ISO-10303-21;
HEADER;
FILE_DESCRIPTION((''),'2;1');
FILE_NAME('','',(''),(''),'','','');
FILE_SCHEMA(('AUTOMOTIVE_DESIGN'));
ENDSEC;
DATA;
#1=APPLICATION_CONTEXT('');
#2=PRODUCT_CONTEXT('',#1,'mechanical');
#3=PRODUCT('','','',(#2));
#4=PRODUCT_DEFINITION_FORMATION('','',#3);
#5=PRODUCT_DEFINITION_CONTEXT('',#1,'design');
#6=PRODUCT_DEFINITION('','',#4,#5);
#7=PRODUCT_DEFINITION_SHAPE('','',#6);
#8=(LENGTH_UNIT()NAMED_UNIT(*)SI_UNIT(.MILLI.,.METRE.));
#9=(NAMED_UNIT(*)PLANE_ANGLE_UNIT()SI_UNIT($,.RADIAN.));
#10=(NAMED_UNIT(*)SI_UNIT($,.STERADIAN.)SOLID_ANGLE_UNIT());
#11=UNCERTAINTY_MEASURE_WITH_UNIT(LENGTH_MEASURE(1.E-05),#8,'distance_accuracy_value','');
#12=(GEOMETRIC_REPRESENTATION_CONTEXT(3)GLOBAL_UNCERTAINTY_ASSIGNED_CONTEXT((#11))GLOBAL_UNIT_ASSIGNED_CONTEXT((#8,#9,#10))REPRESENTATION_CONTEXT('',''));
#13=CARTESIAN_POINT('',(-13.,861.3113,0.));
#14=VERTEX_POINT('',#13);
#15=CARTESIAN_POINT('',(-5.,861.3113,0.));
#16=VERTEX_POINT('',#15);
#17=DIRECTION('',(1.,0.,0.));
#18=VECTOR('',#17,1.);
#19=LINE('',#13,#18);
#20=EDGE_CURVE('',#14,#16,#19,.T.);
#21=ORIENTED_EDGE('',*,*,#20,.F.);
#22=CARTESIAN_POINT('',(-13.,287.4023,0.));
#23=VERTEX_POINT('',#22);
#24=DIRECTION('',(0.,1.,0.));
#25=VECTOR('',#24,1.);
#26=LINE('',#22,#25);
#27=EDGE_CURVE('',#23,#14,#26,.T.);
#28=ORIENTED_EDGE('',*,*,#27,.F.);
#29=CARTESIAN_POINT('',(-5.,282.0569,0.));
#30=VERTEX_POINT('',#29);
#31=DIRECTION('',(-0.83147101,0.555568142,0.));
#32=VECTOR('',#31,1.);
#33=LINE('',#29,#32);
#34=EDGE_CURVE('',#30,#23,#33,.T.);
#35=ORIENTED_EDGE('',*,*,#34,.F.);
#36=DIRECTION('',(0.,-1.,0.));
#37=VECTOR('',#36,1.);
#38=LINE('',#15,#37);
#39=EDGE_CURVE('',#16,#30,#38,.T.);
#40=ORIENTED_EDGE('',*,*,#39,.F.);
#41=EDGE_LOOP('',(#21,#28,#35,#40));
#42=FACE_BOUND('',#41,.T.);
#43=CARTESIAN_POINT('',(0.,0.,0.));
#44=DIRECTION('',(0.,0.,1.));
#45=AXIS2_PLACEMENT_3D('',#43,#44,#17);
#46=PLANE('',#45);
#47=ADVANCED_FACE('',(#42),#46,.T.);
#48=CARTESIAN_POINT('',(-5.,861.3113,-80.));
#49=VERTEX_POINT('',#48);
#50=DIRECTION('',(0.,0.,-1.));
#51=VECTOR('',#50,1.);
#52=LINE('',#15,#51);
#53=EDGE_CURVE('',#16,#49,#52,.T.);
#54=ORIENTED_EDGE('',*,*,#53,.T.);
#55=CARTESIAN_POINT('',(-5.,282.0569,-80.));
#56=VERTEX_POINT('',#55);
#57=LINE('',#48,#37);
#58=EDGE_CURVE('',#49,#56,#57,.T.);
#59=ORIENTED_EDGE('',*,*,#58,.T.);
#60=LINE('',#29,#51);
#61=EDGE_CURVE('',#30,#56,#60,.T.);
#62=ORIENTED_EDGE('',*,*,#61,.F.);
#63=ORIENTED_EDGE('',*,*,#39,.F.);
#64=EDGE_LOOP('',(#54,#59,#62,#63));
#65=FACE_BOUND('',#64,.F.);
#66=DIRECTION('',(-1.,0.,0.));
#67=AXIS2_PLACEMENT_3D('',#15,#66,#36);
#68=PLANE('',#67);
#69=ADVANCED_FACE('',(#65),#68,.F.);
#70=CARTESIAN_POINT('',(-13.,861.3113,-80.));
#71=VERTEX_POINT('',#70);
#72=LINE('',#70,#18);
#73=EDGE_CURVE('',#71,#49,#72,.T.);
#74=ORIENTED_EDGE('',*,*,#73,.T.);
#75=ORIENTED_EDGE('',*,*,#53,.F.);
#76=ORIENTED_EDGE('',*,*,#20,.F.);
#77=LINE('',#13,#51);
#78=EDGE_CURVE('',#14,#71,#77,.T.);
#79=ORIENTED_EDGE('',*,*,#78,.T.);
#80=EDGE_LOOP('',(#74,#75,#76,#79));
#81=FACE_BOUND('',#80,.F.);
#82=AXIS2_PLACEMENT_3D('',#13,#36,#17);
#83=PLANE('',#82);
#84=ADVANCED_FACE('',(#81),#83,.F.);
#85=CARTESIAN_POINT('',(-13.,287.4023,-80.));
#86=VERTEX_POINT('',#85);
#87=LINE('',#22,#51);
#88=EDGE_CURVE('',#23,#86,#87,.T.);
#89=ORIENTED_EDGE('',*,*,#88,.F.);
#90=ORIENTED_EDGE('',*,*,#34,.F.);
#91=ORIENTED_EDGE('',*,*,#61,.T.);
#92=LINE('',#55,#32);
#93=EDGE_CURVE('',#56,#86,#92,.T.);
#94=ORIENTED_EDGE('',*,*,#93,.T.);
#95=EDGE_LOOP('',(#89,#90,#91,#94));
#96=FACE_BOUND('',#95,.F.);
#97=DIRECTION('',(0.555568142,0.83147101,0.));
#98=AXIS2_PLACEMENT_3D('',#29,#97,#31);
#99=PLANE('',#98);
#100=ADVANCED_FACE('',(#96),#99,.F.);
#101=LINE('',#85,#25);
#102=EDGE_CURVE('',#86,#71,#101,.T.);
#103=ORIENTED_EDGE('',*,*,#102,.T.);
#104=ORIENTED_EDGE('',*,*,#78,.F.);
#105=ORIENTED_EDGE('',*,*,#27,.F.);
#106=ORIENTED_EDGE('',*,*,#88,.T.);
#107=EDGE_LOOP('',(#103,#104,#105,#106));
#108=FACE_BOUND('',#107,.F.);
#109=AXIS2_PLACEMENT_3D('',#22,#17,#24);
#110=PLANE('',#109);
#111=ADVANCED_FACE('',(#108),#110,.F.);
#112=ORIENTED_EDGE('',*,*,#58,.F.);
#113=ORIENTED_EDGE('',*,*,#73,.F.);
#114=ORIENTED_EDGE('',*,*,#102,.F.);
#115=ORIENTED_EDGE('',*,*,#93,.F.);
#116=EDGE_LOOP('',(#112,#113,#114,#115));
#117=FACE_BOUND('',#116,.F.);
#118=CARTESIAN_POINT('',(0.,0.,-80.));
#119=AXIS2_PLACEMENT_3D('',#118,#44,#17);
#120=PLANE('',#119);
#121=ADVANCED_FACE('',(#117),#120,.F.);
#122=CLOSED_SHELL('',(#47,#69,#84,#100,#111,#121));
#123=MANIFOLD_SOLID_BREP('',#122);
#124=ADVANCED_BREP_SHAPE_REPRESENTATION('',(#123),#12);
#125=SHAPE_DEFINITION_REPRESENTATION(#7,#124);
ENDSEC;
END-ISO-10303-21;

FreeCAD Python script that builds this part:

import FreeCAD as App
import Part
import Sketcher
from FreeCAD import Vector
Q = App.Units.Quantity

doc = App.newDocument("Part")
body = doc.addObject("PartDesign::Body", "Body")

# Sketch on XY plane
sketch1 = body.newObject("Sketcher::SketchObject", "Sketch")
sketch1.AttachmentSupport = (doc.getObject("XY_Plane"), [""])
sketch1.MapMode = "FlatFace"
sketch1.addGeometry(Part.LineSegment(Vector(-5, 861, 0), Vector(-13, 861, 0)), False)
sketch1.addGeometry(Part.LineSegment(Vector(-13, 861, 0), Vector(-13, 287, 0)), False)
sketch1.addGeometry(Part.LineSegment(Vector(-13, 287, 0), Vector(-5, 282, 0)), False)
sketch1.addGeometry(Part.LineSegment(Vector(-5, 282, 0), Vector(-5, 861, 0)), False)
sketch1.addConstraint(Sketcher.Constraint("Coincident", 0, 2, 1, 1))
sketch1.addConstraint(Sketcher.Constraint("Coincident", 1, 2, 2, 1))
sketch1.addConstraint(Sketcher.Constraint("Coincident", 2, 2, 3, 1))
sketch1.addConstraint(Sketcher.Constraint("Coincident", 3, 2, 0, 1))
sketch1.addConstraint(Sketcher.Constraint("Horizontal", 0))
sketch1.addConstraint(Sketcher.Constraint("Vertical", 1))
sketch1.addConstraint(Sketcher.Constraint("Vertical", 3))
sketch1.addConstraint(Sketcher.Constraint("DistanceX", 0, 2, 0, 1, 8.0))
sketch1.addConstraint(Sketcher.Constraint("DistanceX", 2, 2, -1, 1, 5.0))
sketch1.addConstraint(Sketcher.Constraint("Angle", 2, Q("-33.7499 deg")))
sketch1.addConstraint(Sketcher.Constraint("DistanceY", 1, 2, 1, 1, 573.909))
sketch1.addConstraint(Sketcher.Constraint("DistanceY", -1, 1, 2, 2, 282.057))
pad1 = body.newObject("PartDesign::Pad", "Pad")
pad1.Profile = sketch1
pad1.Length = 80
pad1.Reversed = True

doc.recompute()
